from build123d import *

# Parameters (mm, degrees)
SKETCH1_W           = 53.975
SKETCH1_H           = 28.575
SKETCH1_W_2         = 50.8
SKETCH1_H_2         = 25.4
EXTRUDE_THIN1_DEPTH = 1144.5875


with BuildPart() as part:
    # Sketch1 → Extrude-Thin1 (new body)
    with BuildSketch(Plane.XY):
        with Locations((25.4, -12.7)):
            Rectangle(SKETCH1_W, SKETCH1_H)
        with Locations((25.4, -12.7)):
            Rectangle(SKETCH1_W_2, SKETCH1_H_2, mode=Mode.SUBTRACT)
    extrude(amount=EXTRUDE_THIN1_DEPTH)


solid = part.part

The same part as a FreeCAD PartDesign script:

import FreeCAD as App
import Part
import Sketcher
from FreeCAD import Vector
Q = App.Units.Quantity

doc = App.newDocument("Part")
body = doc.addObject("PartDesign::Body", "Body")

# Sketch on XY plane
sketch1 = body.newObject("Sketcher::SketchObject", "Sketch")
sketch1.AttachmentSupport = (doc.getObject("XY_Plane"), [""])
sketch1.MapMode = "FlatFace"
sketch1.addGeometry([
    Part.LineSegment(Vector(-2, 2, 0), Vector(-2, -27, 0)),  # 0
    Part.LineSegment(Vector(-2, -27, 0), Vector(52, -27, 0)),  # 1
    Part.LineSegment(Vector(52, -27, 0), Vector(52, 2, 0)),  # 2
    Part.LineSegment(Vector(52, 2, 0), Vector(-2, 2, 0)),  # 3
    Part.LineSegment(Vector(51, -25, 0), Vector(0, -25, 0)),  # 4
    Part.LineSegment(Vector(0, -25, 0), Vector(0, 0, 0)),  # 5
    Part.LineSegment(Vector(0, 0, 0), Vector(51, 0, 0)),  # 6
    Part.LineSegment(Vector(51, 0, 0), Vector(51, -25, 0)),  # 7
], False)
sketch1.addConstraint([
    Sketcher.Constraint("Coincident", 0, 2, 1, 1),
    Sketcher.Constraint("Coincident", 1, 2, 2, 1),
    Sketcher.Constraint("Coincident", 2, 2, 3, 1),
    Sketcher.Constraint("Coincident", 3, 2, 0, 1),
    Sketcher.Constraint("Coincident", 4, 2, 5, 1),
    Sketcher.Constraint("Coincident", 5, 2, 6, 1),
    Sketcher.Constraint("Coincident", 6, 2, 7, 1),
    Sketcher.Constraint("Coincident", 7, 2, 4, 1),
    Sketcher.Constraint("Vertical", 0),
    Sketcher.Constraint("Horizontal", 1),
    Sketcher.Constraint("Vertical", 2),
    Sketcher.Constraint("Horizontal", 3),
    Sketcher.Constraint("Horizontal", 4),
    Sketcher.Constraint("Vertical", 5),
    Sketcher.Constraint("Horizontal", 6),
    Sketcher.Constraint("Vertical", 7),
    Sketcher.Constraint("Coincident", 5, 2, -1, 1),
    Sketcher.Constraint("DistanceX", 4, 2, 4, 1, Q("2 in")),
    Sketcher.Constraint("DistanceY", 5, 1, 5, 2, Q("1 in")),
    Sketcher.Constraint("DistanceX", 1, 1, 1, 2, Q("2.125 in")),
    Sketcher.Constraint("DistanceY", 0, 2, 0, 1, Q("1.125 in")),
    Sketcher.Constraint("DistanceX", 0, 2, -1, 1, Q("0.0625 in")),
    Sketcher.Constraint("DistanceY", 0, 2, -1, 1, Q("1.0625 in")),
])
pad1 = body.newObject("PartDesign::Pad", "Pad")
pad1.Profile = sketch1
pad1.Length = Q("45.0625 in")

doc.recompute()
